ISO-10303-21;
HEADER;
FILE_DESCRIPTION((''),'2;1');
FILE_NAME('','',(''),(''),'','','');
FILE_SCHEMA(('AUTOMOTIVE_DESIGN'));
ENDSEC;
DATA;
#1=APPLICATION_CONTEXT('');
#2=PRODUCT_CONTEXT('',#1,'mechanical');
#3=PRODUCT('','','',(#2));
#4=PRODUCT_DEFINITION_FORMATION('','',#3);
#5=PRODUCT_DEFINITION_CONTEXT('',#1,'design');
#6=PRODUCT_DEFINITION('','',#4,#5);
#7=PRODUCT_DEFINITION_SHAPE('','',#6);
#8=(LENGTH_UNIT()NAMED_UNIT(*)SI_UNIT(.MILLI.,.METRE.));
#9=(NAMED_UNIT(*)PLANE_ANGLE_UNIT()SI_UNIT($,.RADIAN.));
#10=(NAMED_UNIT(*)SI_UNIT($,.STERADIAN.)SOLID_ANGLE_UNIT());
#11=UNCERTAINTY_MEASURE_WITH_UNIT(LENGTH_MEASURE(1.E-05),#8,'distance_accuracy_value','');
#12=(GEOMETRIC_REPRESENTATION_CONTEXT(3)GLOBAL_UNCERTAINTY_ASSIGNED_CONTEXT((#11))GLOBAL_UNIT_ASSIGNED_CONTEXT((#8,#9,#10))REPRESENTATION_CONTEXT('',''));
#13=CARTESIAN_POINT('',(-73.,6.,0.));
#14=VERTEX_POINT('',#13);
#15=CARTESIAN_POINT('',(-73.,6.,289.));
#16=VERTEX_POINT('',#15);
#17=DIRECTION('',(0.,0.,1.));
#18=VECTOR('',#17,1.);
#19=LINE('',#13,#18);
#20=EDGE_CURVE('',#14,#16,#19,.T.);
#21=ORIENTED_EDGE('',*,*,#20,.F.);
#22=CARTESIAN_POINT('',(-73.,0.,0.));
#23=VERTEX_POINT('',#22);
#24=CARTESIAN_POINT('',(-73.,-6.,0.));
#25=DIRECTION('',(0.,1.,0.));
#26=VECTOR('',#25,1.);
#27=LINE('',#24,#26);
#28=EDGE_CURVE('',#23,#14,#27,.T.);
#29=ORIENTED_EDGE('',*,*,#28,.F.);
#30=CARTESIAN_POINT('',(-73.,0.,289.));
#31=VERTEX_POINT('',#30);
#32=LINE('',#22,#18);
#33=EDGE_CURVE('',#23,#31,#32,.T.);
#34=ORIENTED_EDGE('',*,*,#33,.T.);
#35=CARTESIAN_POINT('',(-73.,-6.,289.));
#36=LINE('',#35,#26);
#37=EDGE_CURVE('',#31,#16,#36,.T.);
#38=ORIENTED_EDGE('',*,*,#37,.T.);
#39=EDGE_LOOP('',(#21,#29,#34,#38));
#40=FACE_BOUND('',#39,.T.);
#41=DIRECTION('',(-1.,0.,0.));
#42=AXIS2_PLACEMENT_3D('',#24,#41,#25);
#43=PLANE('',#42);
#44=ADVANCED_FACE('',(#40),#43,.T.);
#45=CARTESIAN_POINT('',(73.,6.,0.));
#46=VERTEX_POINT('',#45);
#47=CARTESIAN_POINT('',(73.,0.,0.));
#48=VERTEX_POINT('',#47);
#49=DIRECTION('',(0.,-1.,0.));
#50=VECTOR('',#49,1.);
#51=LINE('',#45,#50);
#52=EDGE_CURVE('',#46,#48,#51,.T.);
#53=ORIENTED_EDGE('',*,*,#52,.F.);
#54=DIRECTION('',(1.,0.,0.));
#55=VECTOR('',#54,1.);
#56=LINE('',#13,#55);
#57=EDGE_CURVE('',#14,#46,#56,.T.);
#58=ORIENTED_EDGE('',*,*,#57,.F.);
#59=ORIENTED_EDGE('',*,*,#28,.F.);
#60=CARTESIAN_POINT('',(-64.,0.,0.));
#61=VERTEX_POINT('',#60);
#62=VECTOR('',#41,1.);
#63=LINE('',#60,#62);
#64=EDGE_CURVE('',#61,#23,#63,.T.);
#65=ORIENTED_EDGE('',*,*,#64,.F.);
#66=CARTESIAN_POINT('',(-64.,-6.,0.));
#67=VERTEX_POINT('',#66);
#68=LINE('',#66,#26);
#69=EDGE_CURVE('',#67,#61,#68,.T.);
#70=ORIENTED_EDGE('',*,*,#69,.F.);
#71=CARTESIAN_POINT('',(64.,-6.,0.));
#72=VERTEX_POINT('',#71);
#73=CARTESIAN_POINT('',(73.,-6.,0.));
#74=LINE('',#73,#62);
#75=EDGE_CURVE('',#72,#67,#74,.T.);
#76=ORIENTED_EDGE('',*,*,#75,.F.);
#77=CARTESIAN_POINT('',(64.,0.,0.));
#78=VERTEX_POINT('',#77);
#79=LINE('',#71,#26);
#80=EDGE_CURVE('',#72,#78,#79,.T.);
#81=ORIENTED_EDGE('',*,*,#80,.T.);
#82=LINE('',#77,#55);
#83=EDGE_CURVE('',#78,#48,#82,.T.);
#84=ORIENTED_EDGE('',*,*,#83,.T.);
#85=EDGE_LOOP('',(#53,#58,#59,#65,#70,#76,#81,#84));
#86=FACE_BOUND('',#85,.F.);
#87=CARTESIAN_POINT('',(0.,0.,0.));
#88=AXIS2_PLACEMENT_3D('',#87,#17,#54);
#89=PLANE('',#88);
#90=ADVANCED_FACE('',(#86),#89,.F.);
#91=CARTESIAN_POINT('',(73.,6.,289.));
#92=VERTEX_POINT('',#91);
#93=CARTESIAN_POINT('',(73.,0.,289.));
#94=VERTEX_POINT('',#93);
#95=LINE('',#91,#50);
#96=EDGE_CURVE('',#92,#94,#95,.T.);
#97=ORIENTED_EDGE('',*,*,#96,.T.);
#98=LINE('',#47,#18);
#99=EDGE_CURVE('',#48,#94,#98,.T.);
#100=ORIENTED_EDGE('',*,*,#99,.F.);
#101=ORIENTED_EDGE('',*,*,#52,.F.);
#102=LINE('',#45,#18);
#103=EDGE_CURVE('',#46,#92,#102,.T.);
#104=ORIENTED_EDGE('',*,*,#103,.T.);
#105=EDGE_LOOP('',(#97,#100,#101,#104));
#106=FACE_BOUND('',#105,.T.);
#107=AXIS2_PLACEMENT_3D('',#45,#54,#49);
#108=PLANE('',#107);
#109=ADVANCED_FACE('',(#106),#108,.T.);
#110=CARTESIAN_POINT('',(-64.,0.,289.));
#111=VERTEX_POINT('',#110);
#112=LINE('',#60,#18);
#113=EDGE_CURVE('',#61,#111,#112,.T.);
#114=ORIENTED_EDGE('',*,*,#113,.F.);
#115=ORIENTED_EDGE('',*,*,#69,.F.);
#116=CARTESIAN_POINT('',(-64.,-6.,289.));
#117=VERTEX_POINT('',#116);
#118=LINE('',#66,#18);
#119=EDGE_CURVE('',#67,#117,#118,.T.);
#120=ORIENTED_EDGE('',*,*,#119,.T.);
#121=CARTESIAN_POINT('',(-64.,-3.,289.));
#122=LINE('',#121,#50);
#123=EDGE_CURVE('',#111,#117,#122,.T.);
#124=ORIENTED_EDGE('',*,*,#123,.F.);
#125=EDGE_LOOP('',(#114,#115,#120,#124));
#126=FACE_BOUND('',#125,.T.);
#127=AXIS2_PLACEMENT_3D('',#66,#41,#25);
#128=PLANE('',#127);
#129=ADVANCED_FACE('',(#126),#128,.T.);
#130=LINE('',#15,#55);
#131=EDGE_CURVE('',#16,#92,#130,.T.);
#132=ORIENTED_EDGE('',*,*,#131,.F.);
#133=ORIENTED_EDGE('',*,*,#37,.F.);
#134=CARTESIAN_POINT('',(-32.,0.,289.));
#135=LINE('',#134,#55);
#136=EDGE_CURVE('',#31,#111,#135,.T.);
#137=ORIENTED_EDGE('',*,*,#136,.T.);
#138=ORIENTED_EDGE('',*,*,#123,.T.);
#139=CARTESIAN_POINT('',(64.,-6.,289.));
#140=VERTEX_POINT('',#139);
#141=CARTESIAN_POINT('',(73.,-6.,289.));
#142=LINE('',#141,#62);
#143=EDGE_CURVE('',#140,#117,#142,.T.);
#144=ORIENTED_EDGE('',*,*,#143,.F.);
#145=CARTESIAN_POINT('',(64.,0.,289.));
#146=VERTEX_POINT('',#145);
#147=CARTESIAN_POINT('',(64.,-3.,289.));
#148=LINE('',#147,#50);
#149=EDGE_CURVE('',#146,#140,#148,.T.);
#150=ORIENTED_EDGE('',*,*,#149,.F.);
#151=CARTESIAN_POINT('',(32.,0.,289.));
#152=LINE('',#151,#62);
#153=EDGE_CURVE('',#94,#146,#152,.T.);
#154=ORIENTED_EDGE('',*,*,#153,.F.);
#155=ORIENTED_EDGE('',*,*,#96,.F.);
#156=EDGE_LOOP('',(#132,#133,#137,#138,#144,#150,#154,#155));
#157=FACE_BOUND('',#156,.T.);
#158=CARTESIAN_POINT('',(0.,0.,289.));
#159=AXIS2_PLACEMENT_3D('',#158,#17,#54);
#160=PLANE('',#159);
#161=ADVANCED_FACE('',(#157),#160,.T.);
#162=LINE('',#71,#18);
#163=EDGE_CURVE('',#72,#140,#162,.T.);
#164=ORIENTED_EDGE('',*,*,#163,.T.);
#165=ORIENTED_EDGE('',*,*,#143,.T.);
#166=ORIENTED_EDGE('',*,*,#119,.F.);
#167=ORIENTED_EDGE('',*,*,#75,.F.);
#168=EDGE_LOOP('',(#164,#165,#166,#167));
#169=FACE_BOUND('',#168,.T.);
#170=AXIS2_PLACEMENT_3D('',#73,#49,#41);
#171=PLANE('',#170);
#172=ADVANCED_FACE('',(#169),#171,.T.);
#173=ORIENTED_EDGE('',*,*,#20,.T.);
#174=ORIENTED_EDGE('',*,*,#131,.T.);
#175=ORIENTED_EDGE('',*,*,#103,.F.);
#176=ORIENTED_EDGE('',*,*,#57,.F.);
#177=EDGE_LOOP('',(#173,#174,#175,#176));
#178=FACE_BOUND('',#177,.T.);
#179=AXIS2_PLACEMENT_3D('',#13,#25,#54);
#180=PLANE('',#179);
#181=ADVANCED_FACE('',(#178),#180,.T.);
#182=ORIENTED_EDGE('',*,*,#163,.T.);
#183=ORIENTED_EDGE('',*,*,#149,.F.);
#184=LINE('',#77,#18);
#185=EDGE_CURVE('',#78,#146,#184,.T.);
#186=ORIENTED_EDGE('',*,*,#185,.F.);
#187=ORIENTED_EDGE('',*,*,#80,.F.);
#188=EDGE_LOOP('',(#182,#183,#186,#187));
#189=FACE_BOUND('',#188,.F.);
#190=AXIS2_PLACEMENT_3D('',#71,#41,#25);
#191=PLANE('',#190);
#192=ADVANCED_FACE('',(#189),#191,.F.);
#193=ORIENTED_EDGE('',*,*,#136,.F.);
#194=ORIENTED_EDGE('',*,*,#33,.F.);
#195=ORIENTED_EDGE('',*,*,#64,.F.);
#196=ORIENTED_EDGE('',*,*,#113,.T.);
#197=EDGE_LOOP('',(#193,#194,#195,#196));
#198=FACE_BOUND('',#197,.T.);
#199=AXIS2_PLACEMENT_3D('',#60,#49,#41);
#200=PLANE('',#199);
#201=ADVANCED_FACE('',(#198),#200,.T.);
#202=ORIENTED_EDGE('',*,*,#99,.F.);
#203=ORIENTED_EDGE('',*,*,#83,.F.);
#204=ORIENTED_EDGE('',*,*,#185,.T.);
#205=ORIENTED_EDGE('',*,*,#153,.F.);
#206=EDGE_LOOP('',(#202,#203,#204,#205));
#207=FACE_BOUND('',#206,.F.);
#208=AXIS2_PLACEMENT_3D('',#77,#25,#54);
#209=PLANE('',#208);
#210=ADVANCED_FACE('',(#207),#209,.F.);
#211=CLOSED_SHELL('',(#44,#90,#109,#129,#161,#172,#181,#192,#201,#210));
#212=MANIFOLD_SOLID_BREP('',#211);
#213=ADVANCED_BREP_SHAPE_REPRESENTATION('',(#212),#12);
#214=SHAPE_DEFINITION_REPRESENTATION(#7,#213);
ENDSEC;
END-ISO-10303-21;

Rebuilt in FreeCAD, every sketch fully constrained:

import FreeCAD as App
import Part
import Sketcher

V = App.Vector
Q = App.Units.Quantity


def add_polygon(sketch, points):
    """Adds a closed chain of lines whose ends are joined by coincident constraints."""
    first, n = sketch.GeometryCount, len(points)
    for a, b in zip(points, points[1:] + points[:1]):
        sketch.addGeometry(Part.LineSegment(App.Vector(*a, 0), App.Vector(*b, 0)), False)
    for i in range(n):
        sketch.addConstraint(Sketcher.Constraint("Coincident", first + i, 2, first + (i + 1) % n, 1))

doc = App.newDocument("Part")
params = doc.addObject("Spreadsheet::Sheet", "Params")
for row, (alias, value) in enumerate([
    ("sketch1_width", "146 mm"),
    ("sketch1_height", "12 mm"),
    ("pad1_length", "289 mm"),
    ("sketch2_height", "6 mm"),
    ("sketch2_width", "9 mm"),
], start=1):
    params.set(f"A{row}", alias)
    params.set(f"B{row}", "=" + value)
    params.setAlias(f"B{row}", alias)

body = doc.addObject("PartDesign::Body", "Body")

# Sketch on XY plane
sketch1 = body.newObject("Sketcher::SketchObject", "Sketch")
sketch1.AttachmentSupport = (doc.getObject("XY_Plane"), [""])
sketch1.MapMode = "FlatFace"
add_polygon(sketch1, [(-73, -6), (73, -6), (73, 6), (-73, 6)])  # lines 0-3
sketch1.addConstraint([
    Sketcher.Constraint("Horizontal", 0),
    Sketcher.Constraint("Vertical", 1),
    Sketcher.Constraint("Horizontal", 2),
    Sketcher.Constraint("Vertical", 3),
    Sketcher.Constraint("Symmetric", 0, 2, 2, 2, -1, 1),
    Sketcher.Constraint("DistanceX", 0, 1, 0, 2, Q("146 mm")),
    Sketcher.Constraint("DistanceY", 1, 1, 1, 2, Q("12 mm")),
])
sketch1.setExpression("Constraints[9]", "Params.sketch1_width")
sketch1.setExpression("Constraints[10]", "Params.sketch1_height")
pad1 = body.newObject("PartDesign::Pad", "Pad")
pad1.Profile = sketch1
pad1.setExpression("Length", "Params.pad1_length")

# Sketch on XY plane
sketch2 = body.newObject("Sketcher::SketchObject", "Sketch001")
sketch2.AttachmentSupport = (doc.getObject("XY_Plane"), [""])
sketch2.MapMode = "FlatFace"
add_polygon(sketch2, [(73, 0), (73, -6), (64, -6), (64, 0)])  # lines 0-3
add_polygon(sketch2, [(-64, -6), (-73, -6), (-73, 0), (-64, 0)])  # lines 4-7
sketch2.addConstraint([
    Sketcher.Constraint("Vertical", 0),
    Sketcher.Constraint("Horizontal", 1),
    Sketcher.Constraint("Vertical", 2),
    Sketcher.Constraint("Horizontal", 3),
    Sketcher.Constraint("Horizontal", 4),
    Sketcher.Constraint("Vertical", 5),
    Sketcher.Constraint("Horizontal", 6),
    Sketcher.Constraint("Vertical", 7),
    Sketcher.Constraint("Symmetric", 3, 2, 5, 2, -1, 1),
    Sketcher.Constraint("Symmetric", 2, 2, 6, 2, -2),
    Sketcher.Constraint("Horizontal", 1, 2, 4, 2),
    Sketcher.Constraint("DistanceY", 0, 2, 0, 1, Q("6 mm")),
    Sketcher.Constraint("DistanceX", -1, 1, 1, 2, Q("64 mm")),
    Sketcher.Constraint("DistanceX", 1, 2, 1, 1, Q("9 mm")),
])
sketch2.setExpression("Constraints[19]", "Params.sketch2_height")
sketch2.setExpression("Constraints[21]", "Params.sketch2_width")
pocket1 = body.newObject("PartDesign::Pocket", "Pocket")
pocket1.Profile = sketch2
pocket1.Type = "ThroughAll"
pocket1.Reversed = True

doc.recompute()
